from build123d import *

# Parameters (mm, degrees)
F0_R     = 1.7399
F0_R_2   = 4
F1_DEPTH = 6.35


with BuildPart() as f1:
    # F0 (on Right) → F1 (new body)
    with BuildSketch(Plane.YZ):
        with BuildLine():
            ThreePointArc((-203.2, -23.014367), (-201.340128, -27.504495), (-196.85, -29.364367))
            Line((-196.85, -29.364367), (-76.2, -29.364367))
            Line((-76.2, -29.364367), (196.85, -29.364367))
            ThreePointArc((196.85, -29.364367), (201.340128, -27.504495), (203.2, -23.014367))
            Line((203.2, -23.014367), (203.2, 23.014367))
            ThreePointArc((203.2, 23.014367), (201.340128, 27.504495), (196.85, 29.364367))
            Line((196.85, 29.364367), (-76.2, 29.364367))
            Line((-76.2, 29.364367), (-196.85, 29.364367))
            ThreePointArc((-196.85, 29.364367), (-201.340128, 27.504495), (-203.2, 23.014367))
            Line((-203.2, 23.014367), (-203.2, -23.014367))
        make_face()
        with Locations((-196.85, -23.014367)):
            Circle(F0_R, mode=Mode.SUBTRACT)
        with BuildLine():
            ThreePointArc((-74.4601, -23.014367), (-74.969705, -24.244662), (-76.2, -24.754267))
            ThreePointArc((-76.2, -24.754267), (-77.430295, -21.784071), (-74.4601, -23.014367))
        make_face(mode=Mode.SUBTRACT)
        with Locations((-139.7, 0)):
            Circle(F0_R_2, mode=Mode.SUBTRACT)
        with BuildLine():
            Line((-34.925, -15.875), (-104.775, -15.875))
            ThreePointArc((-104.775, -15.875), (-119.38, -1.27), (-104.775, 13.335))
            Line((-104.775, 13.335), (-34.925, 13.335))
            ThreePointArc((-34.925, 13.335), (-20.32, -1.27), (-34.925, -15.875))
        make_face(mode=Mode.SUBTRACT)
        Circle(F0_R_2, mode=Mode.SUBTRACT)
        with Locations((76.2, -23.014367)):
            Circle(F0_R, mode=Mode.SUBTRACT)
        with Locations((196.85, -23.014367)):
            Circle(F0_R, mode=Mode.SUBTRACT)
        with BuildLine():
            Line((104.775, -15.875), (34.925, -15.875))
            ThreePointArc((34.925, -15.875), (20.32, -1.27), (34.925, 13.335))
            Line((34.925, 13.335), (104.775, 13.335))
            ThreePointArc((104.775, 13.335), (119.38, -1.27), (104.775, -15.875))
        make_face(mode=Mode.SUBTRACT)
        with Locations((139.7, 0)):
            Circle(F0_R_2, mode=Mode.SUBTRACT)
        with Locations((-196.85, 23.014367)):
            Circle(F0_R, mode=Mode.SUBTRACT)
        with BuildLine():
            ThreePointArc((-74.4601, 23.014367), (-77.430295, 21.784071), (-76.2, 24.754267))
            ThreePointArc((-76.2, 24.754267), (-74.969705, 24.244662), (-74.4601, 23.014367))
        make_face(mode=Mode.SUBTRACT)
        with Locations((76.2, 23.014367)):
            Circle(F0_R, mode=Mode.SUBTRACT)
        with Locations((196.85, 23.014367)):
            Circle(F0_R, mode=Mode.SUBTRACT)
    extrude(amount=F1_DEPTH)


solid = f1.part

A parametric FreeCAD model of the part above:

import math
import FreeCAD as App
import Part
import Sketcher

V = App.Vector
Q = App.Units.Quantity

doc = App.newDocument("Part")
body = doc.addObject("PartDesign::Body", "Body")

sketch1 = body.newObject("Sketcher::SketchObject", "Sketch")
sketch1.AttachmentSupport = (doc.getObject("YZ_Plane"), [""])
sketch1.MapMode = "FlatFace"
sketch1.addGeometry(Part.ArcOfCircle(Part.Circle(V(-196.8, -23, 0), V(0, 0, 1), 6.4), math.radians(-180), math.radians(-90)), False)
sketch1.addGeometry(Part.LineSegment(V(-196.8, -29.4, 0), V(196.8, -29.4, 0)), False)
sketch1.addGeometry(Part.ArcOfCircle(Part.Circle(V(196.8, -23, 0), V(0, 0, 1), 6.4), math.radians(-90), math.radians(0)), False)
sketch1.addGeometry(Part.LineSegment(V(203.2, -23, 0), V(203.2, 23, 0)), False)
sketch1.addGeometry(Part.ArcOfCircle(Part.Circle(V(196.8, 23, 0), V(0, 0, 1), 6.4), math.radians(0), math.radians(90)), False)
sketch1.addGeometry(Part.LineSegment(V(196.8, 29.4, 0), V(-196.8, 29.4, 0)), False)
sketch1.addGeometry(Part.ArcOfCircle(Part.Circle(V(-196.8, 23, 0), V(0, 0, 1), 6.4), math.radians(90), math.radians(180)), False)
sketch1.addGeometry(Part.LineSegment(V(-203.2, 23, 0), V(-203.2, -23, 0)), False)
sketch1.addGeometry(Part.Circle(V(-196.8, -23, 0), V(0, 0, 1), 1.7), False)
sketch1.addGeometry(Part.ArcOfCircle(Part.Circle(V(-76.2, -23, 0), V(0, 0, 1), 1.7), math.radians(0), math.radians(270)), False)
sketch1.addGeometry(Part.ArcOfCircle(Part.Circle(V(-76.2, -23, 0), V(0, 0, 1), 1.7), math.radians(-90), math.radians(0)), False)
sketch1.addGeometry(Part.ArcOfCircle(Part.Circle(V(-34.9, -1.3, 0), V(0, 0, 1), 14.6), math.radians(-90), math.radians(90)), False)
sketch1.addGeometry(Part.LineSegment(V(-34.9, -15.9, 0), V(-104.8, -15.9, 0)), False)
sketch1.addGeometry(Part.ArcOfCircle(Part.Circle(V(-104.8, -1.3, 0), V(0, 0, 1), 14.6), math.radians(90), math.radians(270)), False)
sketch1.addGeometry(Part.LineSegment(V(-104.8, 13.3, 0), V(-34.9, 13.3, 0)), False)
sketch1.addGeometry(Part.Circle(V(76.2, -23, 0), V(0, 0, 1), 1.7), False)
sketch1.addGeometry(Part.Circle(V(196.8, -23, 0), V(0, 0, 1), 1.7), False)
sketch1.addGeometry(Part.ArcOfCircle(Part.Circle(V(104.8, -1.3, 0), V(0, 0, 1), 14.6), math.radians(-90), math.radians(90)), False)
sketch1.addGeometry(Part.LineSegment(V(104.8, -15.9, 0), V(34.9, -15.9, 0)), False)
sketch1.addGeometry(Part.ArcOfCircle(Part.Circle(V(34.9, -1.3, 0), V(0, 0, 1), 14.6), math.radians(90), math.radians(270)), False)
sketch1.addGeometry(Part.LineSegment(V(34.9, 13.3, 0), V(104.8, 13.3, 0)), False)
sketch1.addGeometry(Part.Circle(V(-139.7, 0, 0), V(0, 0, 1), 4), False)
sketch1.addGeometry(Part.Circle(V(-196.8, 23, 0), V(0, 0, 1), 1.7), False)
sketch1.addGeometry(Part.ArcOfCircle(Part.Circle(V(-76.2, 23, 0), V(0, 0, 1), 1.7), math.radians(0), math.radians(90)), False)
sketch1.addGeometry(Part.ArcOfCircle(Part.Circle(V(-76.2, 23, 0), V(0, 0, 1), 1.7), math.radians(90), math.radians(360)), False)
sketch1.addGeometry(Part.Circle(V(0, 0, 0), V(0, 0, 1), 4), False)
sketch1.addGeometry(Part.Circle(V(139.7, 0, 0), V(0, 0, 1), 4), False)
sketch1.addGeometry(Part.Circle(V(76.2, 23, 0), V(0, 0, 1), 1.7), False)
sketch1.addGeometry(Part.Circle(V(196.8, 23, 0), V(0, 0, 1), 1.7), False)
sketch1.addConstraint(Sketcher.Constraint("Tangent", 0, 2, 1, 1))
sketch1.addConstraint(Sketcher.Constraint("Tangent", 1, 2, 2, 1))
sketch1.addConstraint(Sketcher.Constraint("Tangent", 2, 2, 3, 1))
sketch1.addConstraint(Sketcher.Constraint("Tangent", 3, 2, 4, 1))
sketch1.addConstraint(Sketcher.Constraint("Tangent", 4, 2, 5, 1))
sketch1.addConstraint(Sketcher.Constraint("Tangent", 5, 2, 6, 1))
sketch1.addConstraint(Sketcher.Constraint("Tangent", 6, 2, 7, 1))
sketch1.addConstraint(Sketcher.Constraint("Tangent", 7, 2, 0, 1))
sketch1.addConstraint(Sketcher.Constraint("Tangent", 9, 1, 10, 2))
sketch1.addConstraint(Sketcher.Constraint("Coincident", 10, 1, 9, 2))
sketch1.addConstraint(Sketcher.Constraint("Tangent", 11, 1, 12, 1))
sketch1.addConstraint(Sketcher.Constraint("Tangent", 12, 2, 13, 2))
sketch1.addConstraint(Sketcher.Constraint("Tangent", 13, 1, 14, 1))
sketch1.addConstraint(Sketcher.Constraint("Tangent", 14, 2, 11, 2))
sketch1.addConstraint(Sketcher.Constraint("Tangent", 17, 1, 18, 1))
sketch1.addConstraint(Sketcher.Constraint("Tangent", 18, 2, 19, 2))
sketch1.addConstraint(Sketcher.Constraint("Tangent", 19, 1, 20, 1))
sketch1.addConstraint(Sketcher.Constraint("Tangent", 20, 2, 17, 2))
sketch1.addConstraint(Sketcher.Constraint("Tangent", 23, 1, 24, 2))
sketch1.addConstraint(Sketcher.Constraint("Coincident", 24, 1, 23, 2))
sketch1.addConstraint(Sketcher.Constraint("Horizontal", 1))
sketch1.addConstraint(Sketcher.Constraint("Vertical", 3))
sketch1.addConstraint(Sketcher.Constraint("Horizontal", 5))
sketch1.addConstraint(Sketcher.Constraint("Vertical", 7))
sketch1.addConstraint(Sketcher.Constraint("Horizontal", 12))
sketch1.addConstraint(Sketcher.Constraint("Horizontal", 14))
sketch1.addConstraint(Sketcher.Constraint("Horizontal", 18))
sketch1.addConstraint(Sketcher.Constraint("Horizontal", 20))
sketch1.addConstraint(Sketcher.Constraint("Coincident", 25, 3, -1, 1))
sketch1.addConstraint(Sketcher.Constraint("Coincident", 8, 3, 0, 3))
sketch1.addConstraint(Sketcher.Constraint("Coincident", 16, 3, 2, 3))
sketch1.addConstraint(Sketcher.Constraint("Coincident", 22, 3, 6, 3))
sketch1.addConstraint(Sketcher.Constraint("Coincident", 28, 3, 4, 3))
sketch1.addConstraint(Sketcher.Constraint("Equal", 0, 2))
sketch1.addConstraint(Sketcher.Constraint("Equal", 2, 4))
sketch1.addConstraint(Sketcher.Constraint("Equal", 4, 6))
sketch1.addConstraint(Sketcher.Constraint("Equal", 8, 9))
sketch1.addConstraint(Sketcher.Constraint("Equal", 10, 15))
sketch1.addConstraint(Sketcher.Constraint("Equal", 15, 16))
sketch1.addConstraint(Sketcher.Constraint("Equal", 13, 17))
sketch1.addConstraint(Sketcher.Constraint("Equal", 16, 22))
sketch1.addConstraint(Sketcher.Constraint("Equal", 22, 23))
sketch1.addConstraint(Sketcher.Constraint("Equal", 21, 25))
sketch1.addConstraint(Sketcher.Constraint("Equal", 25, 26))
sketch1.addConstraint(Sketcher.Constraint("Equal", 24, 27))
sketch1.addConstraint(Sketcher.Constraint("Equal", 27, 28))
sketch1.addConstraint(Sketcher.Constraint("Symmetric", 0, 3, 4, 3, -1, 1))
sketch1.addConstraint(Sketcher.Constraint("Symmetric", 15, 3, 23, 3, -1, 1))
sketch1.addConstraint(Sketcher.Constraint("Symmetric", 21, 3, 26, 3, -1, 1))
sketch1.addConstraint(Sketcher.Constraint("Symmetric", 9, 3, 27, 3, -1, 1))
sketch1.addConstraint(Sketcher.Constraint("Symmetric", 9, 3, 15, 3, -2))
sketch1.addConstraint(Sketcher.Constraint("Symmetric", 13, 3, 17, 3, -2))
sketch1.addConstraint(Sketcher.Constraint("PointOnObject", 21, 3, -1))
sketch1.addConstraint(Sketcher.Constraint("Horizontal", 8, 3, 9, 3))
sketch1.addConstraint(Sketcher.Constraint("Horizontal", 7, 2, 9, 1))
sketch1.addConstraint(Sketcher.Constraint("Horizontal", 6, 2, 23, 1))
sketch1.addConstraint(Sketcher.Constraint("Vertical", 24, 3, 10, 1))
sketch1.addConstraint(Sketcher.Constraint("Vertical", 10, 1, 24, 1))
sketch1.addConstraint(Sketcher.Constraint("Equal", 14, 18))
sketch1.addConstraint(Sketcher.Constraint("Radius", 0, Q("0.25 in")))
sketch1.addConstraint(Sketcher.Constraint("Diameter", 8, Q("0.137 in")))
sketch1.addConstraint(Sketcher.Constraint("DistanceX", 1, 1, 1, 2, Q("15.5 in")))
sketch1.addConstraint(Sketcher.Constraint("DistanceX", 9, 3, -1, 1, Q("3 in")))
sketch1.addConstraint(Sketcher.Constraint("Radius", 11, Q("0.575 in")))
sketch1.addConstraint(Sketcher.Constraint("DistanceX", 12, 2, 12, 1, Q("2.75 in")))
sketch1.addConstraint(Sketcher.Constraint("DistanceX", 21, 3, -1, 1, Q("5.5 in")))
sketch1.addConstraint(Sketcher.Constraint("DistanceX", 11, 3, 17, 3, Q("5.5 in")))
sketch1.addConstraint(Sketcher.Constraint("Diameter", 21, Q("8 mm")))
sketch1.addConstraint(Sketcher.Constraint("DistanceY", 11, 3, -1, 1, Q("0.05 in")))
sketch1.addConstraint(Sketcher.Constraint("DistanceY", 3, 1, 3, 2, Q("46.028734 mm")))
pad1 = body.newObject("PartDesign::Pad", "Pad")
pad1.Profile = sketch1
pad1.Length = Q("0.25 in")

doc.recompute()
